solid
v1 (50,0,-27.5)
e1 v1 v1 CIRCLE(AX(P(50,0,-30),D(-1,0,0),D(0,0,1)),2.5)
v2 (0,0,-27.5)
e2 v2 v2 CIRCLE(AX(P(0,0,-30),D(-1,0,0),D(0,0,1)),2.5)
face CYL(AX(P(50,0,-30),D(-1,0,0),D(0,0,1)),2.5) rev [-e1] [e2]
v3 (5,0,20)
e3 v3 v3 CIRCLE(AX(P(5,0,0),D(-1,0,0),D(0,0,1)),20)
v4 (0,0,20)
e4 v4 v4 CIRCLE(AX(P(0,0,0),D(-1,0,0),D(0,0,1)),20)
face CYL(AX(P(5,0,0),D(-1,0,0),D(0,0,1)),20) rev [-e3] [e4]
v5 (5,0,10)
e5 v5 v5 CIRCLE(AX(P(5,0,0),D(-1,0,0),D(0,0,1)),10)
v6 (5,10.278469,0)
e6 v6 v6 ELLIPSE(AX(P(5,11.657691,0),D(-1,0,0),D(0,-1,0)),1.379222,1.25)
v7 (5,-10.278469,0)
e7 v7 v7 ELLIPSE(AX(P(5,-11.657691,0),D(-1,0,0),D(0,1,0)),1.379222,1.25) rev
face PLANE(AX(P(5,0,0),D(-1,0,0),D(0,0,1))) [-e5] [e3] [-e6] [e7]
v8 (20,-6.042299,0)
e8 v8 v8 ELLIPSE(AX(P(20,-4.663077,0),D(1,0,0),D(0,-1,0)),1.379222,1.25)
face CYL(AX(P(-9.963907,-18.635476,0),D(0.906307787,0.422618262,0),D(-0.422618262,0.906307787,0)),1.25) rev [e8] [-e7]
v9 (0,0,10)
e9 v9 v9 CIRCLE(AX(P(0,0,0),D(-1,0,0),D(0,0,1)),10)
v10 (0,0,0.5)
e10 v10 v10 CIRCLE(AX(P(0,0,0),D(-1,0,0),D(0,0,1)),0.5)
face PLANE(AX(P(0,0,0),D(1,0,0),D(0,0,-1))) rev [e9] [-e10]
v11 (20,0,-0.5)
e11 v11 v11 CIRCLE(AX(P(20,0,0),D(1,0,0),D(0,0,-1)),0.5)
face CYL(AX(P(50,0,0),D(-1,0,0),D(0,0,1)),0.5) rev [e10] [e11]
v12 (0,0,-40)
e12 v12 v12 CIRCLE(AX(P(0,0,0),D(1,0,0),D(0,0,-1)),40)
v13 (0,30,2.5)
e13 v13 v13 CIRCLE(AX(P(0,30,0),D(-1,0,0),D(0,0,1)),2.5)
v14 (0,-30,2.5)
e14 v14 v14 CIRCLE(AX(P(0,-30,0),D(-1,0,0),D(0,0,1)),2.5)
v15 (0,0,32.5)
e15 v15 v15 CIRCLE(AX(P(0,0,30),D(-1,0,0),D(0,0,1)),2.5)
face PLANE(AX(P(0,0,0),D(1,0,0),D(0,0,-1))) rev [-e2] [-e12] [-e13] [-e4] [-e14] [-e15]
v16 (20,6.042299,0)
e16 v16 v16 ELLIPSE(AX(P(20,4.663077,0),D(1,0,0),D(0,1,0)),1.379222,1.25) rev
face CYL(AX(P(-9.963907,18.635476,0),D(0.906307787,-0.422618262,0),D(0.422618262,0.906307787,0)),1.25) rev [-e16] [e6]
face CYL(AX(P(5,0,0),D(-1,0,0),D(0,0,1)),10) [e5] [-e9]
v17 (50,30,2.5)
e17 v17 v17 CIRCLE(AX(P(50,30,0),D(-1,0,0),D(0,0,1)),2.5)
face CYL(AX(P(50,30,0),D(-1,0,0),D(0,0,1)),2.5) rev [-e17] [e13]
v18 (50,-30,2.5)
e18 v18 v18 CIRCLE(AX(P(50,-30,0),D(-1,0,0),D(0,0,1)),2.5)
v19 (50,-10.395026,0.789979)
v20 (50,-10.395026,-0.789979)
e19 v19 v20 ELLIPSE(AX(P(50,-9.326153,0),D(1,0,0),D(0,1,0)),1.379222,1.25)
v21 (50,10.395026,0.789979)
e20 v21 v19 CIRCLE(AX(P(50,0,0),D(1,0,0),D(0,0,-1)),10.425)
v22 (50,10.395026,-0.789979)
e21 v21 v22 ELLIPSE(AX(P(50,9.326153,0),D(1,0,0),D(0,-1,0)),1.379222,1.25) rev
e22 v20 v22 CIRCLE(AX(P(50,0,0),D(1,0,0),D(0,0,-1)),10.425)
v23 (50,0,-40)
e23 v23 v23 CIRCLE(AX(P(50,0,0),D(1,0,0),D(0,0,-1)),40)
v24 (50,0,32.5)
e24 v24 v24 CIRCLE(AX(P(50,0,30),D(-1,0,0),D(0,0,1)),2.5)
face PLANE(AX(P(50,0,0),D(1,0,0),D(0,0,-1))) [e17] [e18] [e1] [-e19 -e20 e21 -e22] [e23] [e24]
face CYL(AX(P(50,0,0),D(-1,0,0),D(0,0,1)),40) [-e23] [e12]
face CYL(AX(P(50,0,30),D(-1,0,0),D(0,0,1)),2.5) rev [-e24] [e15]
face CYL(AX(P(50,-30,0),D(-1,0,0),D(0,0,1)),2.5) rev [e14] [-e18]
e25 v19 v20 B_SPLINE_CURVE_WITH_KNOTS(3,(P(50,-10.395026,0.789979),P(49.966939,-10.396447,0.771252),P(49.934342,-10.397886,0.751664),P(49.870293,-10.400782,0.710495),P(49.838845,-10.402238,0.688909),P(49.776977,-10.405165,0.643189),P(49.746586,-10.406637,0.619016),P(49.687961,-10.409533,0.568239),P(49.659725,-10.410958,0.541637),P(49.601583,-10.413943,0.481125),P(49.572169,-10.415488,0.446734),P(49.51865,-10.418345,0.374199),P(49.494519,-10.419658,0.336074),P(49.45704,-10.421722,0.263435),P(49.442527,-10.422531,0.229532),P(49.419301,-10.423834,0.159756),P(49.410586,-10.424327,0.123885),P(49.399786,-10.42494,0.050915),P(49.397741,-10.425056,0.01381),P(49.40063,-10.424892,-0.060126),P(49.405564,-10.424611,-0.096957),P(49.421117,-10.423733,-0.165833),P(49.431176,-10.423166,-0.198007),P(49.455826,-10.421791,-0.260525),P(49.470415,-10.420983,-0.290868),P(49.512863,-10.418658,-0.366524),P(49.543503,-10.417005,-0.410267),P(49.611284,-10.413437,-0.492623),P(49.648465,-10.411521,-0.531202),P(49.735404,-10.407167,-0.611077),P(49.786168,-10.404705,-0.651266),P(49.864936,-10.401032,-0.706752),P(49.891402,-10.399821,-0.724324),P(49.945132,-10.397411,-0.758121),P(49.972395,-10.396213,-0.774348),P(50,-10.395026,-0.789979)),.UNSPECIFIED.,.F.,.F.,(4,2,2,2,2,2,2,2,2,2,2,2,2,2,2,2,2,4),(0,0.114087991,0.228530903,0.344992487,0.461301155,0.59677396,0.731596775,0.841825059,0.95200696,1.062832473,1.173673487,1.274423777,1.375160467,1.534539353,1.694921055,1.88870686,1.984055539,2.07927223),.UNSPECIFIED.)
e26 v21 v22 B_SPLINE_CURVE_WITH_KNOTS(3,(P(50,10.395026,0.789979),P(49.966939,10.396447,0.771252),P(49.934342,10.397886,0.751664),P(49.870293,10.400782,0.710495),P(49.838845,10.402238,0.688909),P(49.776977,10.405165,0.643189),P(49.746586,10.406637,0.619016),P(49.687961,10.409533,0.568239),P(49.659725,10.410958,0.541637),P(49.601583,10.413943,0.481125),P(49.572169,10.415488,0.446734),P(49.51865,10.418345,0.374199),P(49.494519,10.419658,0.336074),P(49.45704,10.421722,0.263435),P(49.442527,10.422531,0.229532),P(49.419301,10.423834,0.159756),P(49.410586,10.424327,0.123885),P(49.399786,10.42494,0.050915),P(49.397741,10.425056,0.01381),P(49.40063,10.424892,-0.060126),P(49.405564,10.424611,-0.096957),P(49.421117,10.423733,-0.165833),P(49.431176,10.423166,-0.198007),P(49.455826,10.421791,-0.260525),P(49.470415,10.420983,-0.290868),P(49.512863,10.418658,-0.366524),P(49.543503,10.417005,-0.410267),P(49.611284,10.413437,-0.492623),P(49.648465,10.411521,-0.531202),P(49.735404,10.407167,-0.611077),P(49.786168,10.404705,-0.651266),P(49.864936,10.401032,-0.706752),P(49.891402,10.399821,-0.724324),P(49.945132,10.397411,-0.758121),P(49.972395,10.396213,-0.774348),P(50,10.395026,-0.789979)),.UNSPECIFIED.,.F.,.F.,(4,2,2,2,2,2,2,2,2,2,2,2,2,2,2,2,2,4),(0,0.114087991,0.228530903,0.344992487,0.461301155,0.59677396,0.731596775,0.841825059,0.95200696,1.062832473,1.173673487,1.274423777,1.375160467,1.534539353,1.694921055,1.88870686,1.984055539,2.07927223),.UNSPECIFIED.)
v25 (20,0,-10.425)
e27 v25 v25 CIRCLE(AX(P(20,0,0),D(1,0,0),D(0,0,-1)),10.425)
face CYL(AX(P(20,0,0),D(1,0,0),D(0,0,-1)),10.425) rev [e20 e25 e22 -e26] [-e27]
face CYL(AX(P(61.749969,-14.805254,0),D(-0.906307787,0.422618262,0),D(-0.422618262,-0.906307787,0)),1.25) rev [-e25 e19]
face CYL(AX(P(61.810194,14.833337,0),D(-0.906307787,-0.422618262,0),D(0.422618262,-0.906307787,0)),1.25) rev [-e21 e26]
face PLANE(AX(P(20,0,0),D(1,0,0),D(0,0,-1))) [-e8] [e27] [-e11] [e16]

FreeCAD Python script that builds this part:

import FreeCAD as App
import Part
import Sketcher

V = App.Vector

doc = App.newDocument("Part")
params = doc.addObject("Spreadsheet::Sheet", "Params")
for row, (alias, value) in enumerate([
    ("sketch1_diameter", "80 mm"),
    ("pad1_length", "50 mm"),
    ("sketch2_diameter", "20.85 mm"),
    ("pocket1_length", "30 mm"),
    ("sketch3_diameter", "40 mm"),
    ("sketch3_diameter2", "20 mm"),
    ("pocket2_length", "5 mm"),
    ("sketch4_diameter", "1 mm"),
    ("sketch5_diameter", "5 mm"),
    ("sketch6_diameter", "2.5 mm"),
    ("pocket5_length", "50.817776 mm"),
    ("sketch7_diameter", "2.5 mm"),
    ("pocket6_length", "50.817776 mm"),
], start=1):
    params.set(f"A{row}", alias)
    params.set(f"B{row}", "=" + value)
    params.setAlias(f"B{row}", alias)

body = doc.addObject("PartDesign::Body", "Body")

# Sketch on YZ plane
sketch1 = body.newObject("Sketcher::SketchObject", "Sketch")
sketch1.AttachmentSupport = (doc.getObject("YZ_Plane"), [""])
sketch1.MapMode = "FlatFace"
sketch1.addGeometry(Part.Circle(V(0, 0, 0), V(0, 0, 1), 40), False)
sketch1.addConstraint([
    Sketcher.Constraint("Coincident", 0, 3, -1, 1),
    Sketcher.Constraint("Diameter", 0, 80.0),
])
sketch1.setExpression("Constraints[1]", "Params.sketch1_diameter")
pad1 = body.newObject("PartDesign::Pad", "Pad")
pad1.Profile = sketch1
pad1.setExpression("Length", "Params.pad1_length")

# Sketch on YZ plane
sketch2 = body.newObject("Sketcher::SketchObject", "Sketch001")
sketch2.AttachmentSupport = (doc.getObject("YZ_Plane"), [""])
sketch2.MapMode = "FlatFace"
sketch2.AttachmentOffset = App.Placement(V(0, 0, 50), App.Rotation())
sketch2.addGeometry(Part.Circle(V(0, 0, 0), V(0, 0, 1), 10), False)
sketch2.addConstraint([
    Sketcher.Constraint("Coincident", 0, 3, -1, 1),
    Sketcher.Constraint("Diameter", 0, 20.85),
])
sketch2.setExpression("Constraints[1]", "Params.sketch2_diameter")
pocket1 = body.newObject("PartDesign::Pocket", "Pocket")
pocket1.Profile = sketch2
pocket1.setExpression("Length", "Params.pocket1_length")

# Sketch on YZ plane
sketch3 = body.newObject("Sketcher::SketchObject", "Sketch002")
sketch3.AttachmentSupport = (doc.getObject("YZ_Plane"), [""])
sketch3.MapMode = "FlatFace"
sketch3.addGeometry([
    Part.Circle(V(0, 0, 0), V(0, 0, 1), 20),
    Part.Circle(V(0, 0, 0), V(0, 0, 1), 10),
], False)
sketch3.addConstraint([
    Sketcher.Constraint("Coincident", 0, 3, -1, 1),
    Sketcher.Constraint("Coincident", 1, 3, -1, 1),
    Sketcher.Constraint("Diameter", 0, 40.0),
    Sketcher.Constraint("Diameter", 1, 20.0),
])
sketch3.setExpression("Constraints[2]", "Params.sketch3_diameter")
sketch3.setExpression("Constraints[3]", "Params.sketch3_diameter2")
pocket2 = body.newObject("PartDesign::Pocket", "Pocket001")
pocket2.Profile = sketch3
pocket2.setExpression("Length", "Params.pocket2_length")
pocket2.Reversed = True

# Sketch on YZ plane
sketch4 = body.newObject("Sketcher::SketchObject", "Sketch003")
sketch4.AttachmentSupport = (doc.getObject("YZ_Plane"), [""])
sketch4.MapMode = "FlatFace"
sketch4.addGeometry(Part.Circle(V(0, 0, 0), V(0, 0, 1), 0.5), False)
sketch4.addConstraint([
    Sketcher.Constraint("Coincident", 0, 3, -1, 1),
    Sketcher.Constraint("Diameter", 0, 1.0),
])
sketch4.setExpression("Constraints[1]", "Params.sketch4_diameter")
pocket3 = body.newObject("PartDesign::Pocket", "Pocket002")
pocket3.Profile = sketch4
pocket3.Type = "ThroughAll"
pocket3.Reversed = True

# Sketch on YZ plane
sketch5 = body.newObject("Sketcher::SketchObject", "Sketch004")
sketch5.AttachmentSupport = (doc.getObject("YZ_Plane"), [""])
sketch5.MapMode = "FlatFace"
sketch5.addGeometry([
    Part.Circle(V(30, 0, 0), V(0, 0, 1), 2.5),
    Part.Circle(V(0, 30, 0), V(0, 0, 1), 2.5),
    Part.Circle(V(-30, 0, 0), V(0, 0, 1), 2.5),
    Part.Circle(V(0, -30, 0), V(0, 0, 1), 2.5),
], False)
sketch5.addConstraint([
    Sketcher.Constraint("Equal", 0, 1),
    Sketcher.Constraint("Equal", 1, 2),
    Sketcher.Constraint("Equal", 2, 3),
    Sketcher.Constraint("Symmetric", 0, 3, 2, 3, -1, 1),
    Sketcher.Constraint("Symmetric", 1, 3, 3, 3, -1, 1),
    Sketcher.Constraint("PointOnObject", 0, 3, -1),
    Sketcher.Constraint("PointOnObject", 1, 3, -2),
    Sketcher.Constraint("Diameter", 0, 5.0),
    Sketcher.Constraint("DistanceX", -1, 1, 0, 3, 30.0),
    Sketcher.Constraint("DistanceY", -1, 1, 1, 3, 30.0),
])
sketch5.setExpression("Constraints[7]", "Params.sketch5_diameter")
pocket4 = body.newObject("PartDesign::Pocket", "Pocket003")
pocket4.Profile = sketch5
pocket4.Type = "ThroughAll"
pocket4.Reversed = True

# Sketch on an angled plane
sketch6 = body.newObject("Sketcher::SketchObject", "Sketch005")
sketch6.Placement = App.Placement(V(45.170087, -21.063158, 0), App.Rotation(V(0, 0, 1), V(0.422618262, 0.906307787, 0), V(-0.906307787, 0.422618262, 0), "ZXY"))
sketch6.addGeometry(Part.Circle(V(0, 12.7, 0), V(0, 0, 1), 1.2), False)
sketch6.addConstraint([
    Sketcher.Constraint("PointOnObject", 0, 3, -2),
    Sketcher.Constraint("Diameter", 0, 2.5),
    Sketcher.Constraint("DistanceY", -1, 1, 0, 3, 12.678548),
])
sketch6.setExpression("Constraints[1]", "Params.sketch6_diameter")
pocket5 = body.newObject("PartDesign::Pocket", "Pocket004")
pocket5.Profile = sketch6
pocket5.setExpression("Length", "Params.pocket5_length")
pocket5.Reversed = True
doc.recompute()

mirrored = body.newObject("PartDesign::Mirrored", "Mirrored")
mirrored.Originals = [pocket5]
mirrored.MirrorPlane = (doc.getObject("XZ_Plane"), [""])
body.Tip = mirrored
doc.recompute()

mirrored2 = body.newObject("PartDesign::Mirrored", "Mirrored001")
mirrored2.Originals = [pocket5]
mirrored2.MirrorPlane = (doc.getObject("XY_Plane"), [""])
body.Tip = mirrored2

# Sketch on an angled plane
sketch7 = body.newObject("Sketcher::SketchObject", "Sketch006")
sketch7.Placement = App.Placement(V(45.170087, 21.063158, 0), App.Rotation(V(0, 0, -1), V(0.422618262, -0.906307787, 0), V(-0.906307787, -0.422618262, 0), "ZXY"))
sketch7.addGeometry(Part.Circle(V(0, 12.7, 0), V(0, 0, 1), 1.2), False)
sketch7.addConstraint([
    Sketcher.Constraint("PointOnObject", 0, 3, -2),
    Sketcher.Constraint("Diameter", 0, 2.5),
    Sketcher.Constraint("DistanceY", -1, 1, 0, 3, 12.678548),
])
sketch7.setExpression("Constraints[1]", "Params.sketch7_diameter")
pocket6 = body.newObject("PartDesign::Pocket", "Pocket005")
pocket6.Profile = sketch7
pocket6.setExpression("Length", "Params.pocket6_length")
pocket6.Reversed = True

doc.recompute()
